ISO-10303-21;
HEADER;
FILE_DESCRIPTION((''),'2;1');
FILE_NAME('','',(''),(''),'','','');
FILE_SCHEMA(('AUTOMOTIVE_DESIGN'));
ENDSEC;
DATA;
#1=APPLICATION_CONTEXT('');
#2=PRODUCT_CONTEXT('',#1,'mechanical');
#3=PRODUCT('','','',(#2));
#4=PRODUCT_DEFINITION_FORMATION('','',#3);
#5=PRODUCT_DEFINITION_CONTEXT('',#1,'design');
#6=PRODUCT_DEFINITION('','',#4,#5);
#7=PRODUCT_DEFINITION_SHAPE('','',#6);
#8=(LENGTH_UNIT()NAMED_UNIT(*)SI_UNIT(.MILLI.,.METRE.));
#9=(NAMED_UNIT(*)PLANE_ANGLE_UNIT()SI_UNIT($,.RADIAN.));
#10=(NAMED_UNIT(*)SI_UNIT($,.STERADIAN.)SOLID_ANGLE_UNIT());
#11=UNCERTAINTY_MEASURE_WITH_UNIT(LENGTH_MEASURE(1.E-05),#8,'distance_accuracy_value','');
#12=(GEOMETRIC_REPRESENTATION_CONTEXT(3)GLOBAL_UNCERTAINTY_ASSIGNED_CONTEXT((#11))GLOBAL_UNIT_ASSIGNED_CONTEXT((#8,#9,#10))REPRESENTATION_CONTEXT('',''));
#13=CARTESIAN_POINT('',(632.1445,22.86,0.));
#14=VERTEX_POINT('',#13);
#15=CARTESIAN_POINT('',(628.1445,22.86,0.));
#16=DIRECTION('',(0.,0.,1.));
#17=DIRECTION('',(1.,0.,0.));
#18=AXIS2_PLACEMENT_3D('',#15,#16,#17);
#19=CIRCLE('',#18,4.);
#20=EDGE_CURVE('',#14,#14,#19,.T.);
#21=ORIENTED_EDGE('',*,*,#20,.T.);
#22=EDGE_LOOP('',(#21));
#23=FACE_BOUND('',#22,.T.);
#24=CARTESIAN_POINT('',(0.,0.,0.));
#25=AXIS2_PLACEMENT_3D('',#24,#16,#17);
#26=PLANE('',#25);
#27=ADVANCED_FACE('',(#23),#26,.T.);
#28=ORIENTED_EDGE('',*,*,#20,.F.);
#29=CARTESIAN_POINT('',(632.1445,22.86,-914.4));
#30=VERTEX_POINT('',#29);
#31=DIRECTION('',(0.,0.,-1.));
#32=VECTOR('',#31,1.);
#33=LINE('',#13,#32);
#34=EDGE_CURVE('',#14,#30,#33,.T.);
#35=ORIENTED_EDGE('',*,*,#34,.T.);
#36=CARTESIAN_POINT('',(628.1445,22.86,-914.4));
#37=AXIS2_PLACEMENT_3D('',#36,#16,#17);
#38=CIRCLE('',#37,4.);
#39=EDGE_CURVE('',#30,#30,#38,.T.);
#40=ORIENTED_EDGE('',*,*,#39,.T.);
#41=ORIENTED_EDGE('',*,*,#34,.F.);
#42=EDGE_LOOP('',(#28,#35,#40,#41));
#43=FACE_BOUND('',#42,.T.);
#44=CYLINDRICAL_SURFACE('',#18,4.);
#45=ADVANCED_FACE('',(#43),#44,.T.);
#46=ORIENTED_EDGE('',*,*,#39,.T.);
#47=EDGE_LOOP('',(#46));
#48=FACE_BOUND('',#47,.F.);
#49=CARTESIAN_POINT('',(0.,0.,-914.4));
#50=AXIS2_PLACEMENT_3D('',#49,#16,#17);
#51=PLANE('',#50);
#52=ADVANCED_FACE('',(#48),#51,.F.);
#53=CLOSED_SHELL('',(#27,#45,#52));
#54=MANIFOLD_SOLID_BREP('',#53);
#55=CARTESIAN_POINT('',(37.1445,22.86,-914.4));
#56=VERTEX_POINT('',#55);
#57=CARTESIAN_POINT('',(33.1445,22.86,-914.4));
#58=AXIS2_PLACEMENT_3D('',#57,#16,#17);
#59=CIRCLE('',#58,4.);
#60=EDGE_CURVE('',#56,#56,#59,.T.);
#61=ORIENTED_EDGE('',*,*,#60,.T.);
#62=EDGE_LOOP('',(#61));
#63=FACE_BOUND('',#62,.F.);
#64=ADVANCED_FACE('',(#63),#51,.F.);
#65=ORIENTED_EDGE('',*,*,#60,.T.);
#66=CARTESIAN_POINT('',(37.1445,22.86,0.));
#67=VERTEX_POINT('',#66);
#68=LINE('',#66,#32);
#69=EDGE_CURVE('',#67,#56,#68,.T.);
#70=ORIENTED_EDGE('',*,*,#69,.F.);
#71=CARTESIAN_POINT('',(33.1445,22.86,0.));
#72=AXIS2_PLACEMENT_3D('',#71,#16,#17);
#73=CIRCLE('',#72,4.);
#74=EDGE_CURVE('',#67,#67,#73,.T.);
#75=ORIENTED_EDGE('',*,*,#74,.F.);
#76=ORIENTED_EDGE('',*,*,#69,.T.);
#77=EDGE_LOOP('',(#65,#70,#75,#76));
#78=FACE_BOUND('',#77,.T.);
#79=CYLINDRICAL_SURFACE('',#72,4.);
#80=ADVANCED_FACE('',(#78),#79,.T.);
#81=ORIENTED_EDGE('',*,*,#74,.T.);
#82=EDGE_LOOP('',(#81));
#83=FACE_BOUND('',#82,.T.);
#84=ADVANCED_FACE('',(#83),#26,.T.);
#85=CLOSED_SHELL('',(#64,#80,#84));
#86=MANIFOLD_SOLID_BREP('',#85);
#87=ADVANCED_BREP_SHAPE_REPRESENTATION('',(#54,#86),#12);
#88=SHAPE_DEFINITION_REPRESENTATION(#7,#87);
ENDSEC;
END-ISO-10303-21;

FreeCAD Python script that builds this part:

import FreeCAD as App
import Part
import Sketcher

V = App.Vector
Q = App.Units.Quantity

doc = App.newDocument("Part")
body = doc.addObject("PartDesign::Body", "Body")
body.AllowCompound = True

# Sketch on XY plane
sketch1 = body.newObject("Sketcher::SketchObject", "Sketch")
sketch1.AttachmentSupport = (doc.getObject("XY_Plane"), [""])
sketch1.MapMode = "FlatFace"
sketch1.addGeometry([
    Part.Circle(V(33.1, 22.9, 0), V(0, 0, 1), 4),
    Part.Circle(V(628.1, 22.9, 0), V(0, 0, 1), 4),
], False)
sketch1.addConstraint([
    Sketcher.Constraint("Equal", 0, 1),
    Sketcher.Constraint("Horizontal", 0, 3, 1, 3),
    Sketcher.Constraint("Diameter", 0, Q("8 mm")),
    Sketcher.Constraint("DistanceX", 0, 3, 1, 3, Q("595 mm")),
    Sketcher.Constraint("DistanceY", -1, 1, 0, 3, Q("22.86 mm")),
    Sketcher.Constraint("DistanceX", -1, 1, 0, 3, Q("33.1445 mm")),
])
pad1 = body.newObject("PartDesign::Pad", "Pad")
pad1.Profile = sketch1
pad1.Length = 914.4
pad1.Reversed = True

doc.recompute()
